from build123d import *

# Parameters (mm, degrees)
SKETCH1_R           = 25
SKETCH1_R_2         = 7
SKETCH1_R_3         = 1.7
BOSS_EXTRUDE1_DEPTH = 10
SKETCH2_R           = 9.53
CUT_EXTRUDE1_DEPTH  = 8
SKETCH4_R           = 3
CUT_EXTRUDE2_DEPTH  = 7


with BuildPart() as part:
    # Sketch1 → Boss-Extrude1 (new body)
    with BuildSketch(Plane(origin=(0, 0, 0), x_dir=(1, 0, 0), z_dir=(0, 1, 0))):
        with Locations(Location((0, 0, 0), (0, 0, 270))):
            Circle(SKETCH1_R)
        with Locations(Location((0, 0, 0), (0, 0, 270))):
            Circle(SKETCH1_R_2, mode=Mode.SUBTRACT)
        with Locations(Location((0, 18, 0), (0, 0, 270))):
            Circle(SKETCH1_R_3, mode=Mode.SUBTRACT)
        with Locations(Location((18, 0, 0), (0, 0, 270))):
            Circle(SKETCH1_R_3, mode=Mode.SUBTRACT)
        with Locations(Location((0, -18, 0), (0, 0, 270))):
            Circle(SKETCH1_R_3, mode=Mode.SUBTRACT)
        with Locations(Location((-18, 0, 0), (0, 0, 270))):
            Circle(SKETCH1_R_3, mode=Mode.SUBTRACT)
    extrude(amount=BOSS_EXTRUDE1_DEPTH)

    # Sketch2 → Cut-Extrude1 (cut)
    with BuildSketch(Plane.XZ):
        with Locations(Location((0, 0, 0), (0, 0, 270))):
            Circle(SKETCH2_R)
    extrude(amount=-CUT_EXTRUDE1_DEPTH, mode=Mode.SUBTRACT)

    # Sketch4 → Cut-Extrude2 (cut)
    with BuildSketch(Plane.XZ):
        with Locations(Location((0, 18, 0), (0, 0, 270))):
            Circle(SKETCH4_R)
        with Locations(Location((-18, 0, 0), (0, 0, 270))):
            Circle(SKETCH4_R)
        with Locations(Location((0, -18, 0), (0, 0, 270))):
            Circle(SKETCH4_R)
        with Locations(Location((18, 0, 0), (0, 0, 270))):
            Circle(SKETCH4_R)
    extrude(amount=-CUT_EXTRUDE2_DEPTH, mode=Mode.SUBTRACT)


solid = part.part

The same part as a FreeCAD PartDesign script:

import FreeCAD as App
import Part
import Sketcher
from FreeCAD import Vector
Q = App.Units.Quantity

doc = App.newDocument("Part")
body = doc.addObject("PartDesign::Body", "Body")

# Sketch on XZ plane
sketch1 = body.newObject("Sketcher::SketchObject", "Sketch")
sketch1.AttachmentSupport = (doc.getObject("XZ_Plane"), [""])
sketch1.MapMode = "FlatFace"
sketch1.addGeometry([
    Part.Circle(Vector(0, 0, 0), Vector(0, 0, 1), 25),  # 0
    Part.Circle(Vector(0, -18, 0), Vector(0, 0, 1), 1.7),  # 1
    Part.Circle(Vector(-18, 0, 0), Vector(0, 0, 1), 1.7),  # 2
    Part.Circle(Vector(0, 0, 0), Vector(0, 0, 1), 7),  # 3
    Part.Circle(Vector(18, 0, 0), Vector(0, 0, 1), 1.7),  # 4
    Part.Circle(Vector(0, 18, 0), Vector(0, 0, 1), 1.7),  # 5
], False)
sketch1.addConstraint([
    Sketcher.Constraint("Coincident", 0, 3, -1, 1),
    Sketcher.Constraint("Coincident", 3, 3, -1, 1),
    Sketcher.Constraint("Equal", 1, 2),
    Sketcher.Constraint("Equal", 2, 4),
    Sketcher.Constraint("Equal", 4, 5),
    Sketcher.Constraint("Symmetric", 2, 3, 4, 3, -1, 1),
    Sketcher.Constraint("Symmetric", 1, 3, 5, 3, -1, 1),
    Sketcher.Constraint("PointOnObject", 1, 3, -2),
    Sketcher.Constraint("PointOnObject", 2, 3, -1),
    Sketcher.Constraint("Diameter", 0, Q("50 mm")),
    Sketcher.Constraint("Diameter", 3, Q("14 mm")),
    Sketcher.Constraint("Diameter", 1, Q("3.4 mm")),
    Sketcher.Constraint("DistanceY", 1, 3, -1, 1, Q("18 mm")),
    Sketcher.Constraint("DistanceX", 2, 3, -1, 1, Q("18 mm")),
])
pad1 = body.newObject("PartDesign::Pad", "Pad")
pad1.Profile = sketch1
pad1.Length = 10
pad1.Reversed = True

# Sketch on XZ plane
sketch2 = body.newObject("Sketcher::SketchObject", "Sketch001")
sketch2.AttachmentSupport = (doc.getObject("XZ_Plane"), [""])
sketch2.MapMode = "FlatFace"
sketch2.addGeometry(Part.Circle(Vector(0, 0, 0), Vector(0, 0, 1), 9.53), False)
sketch2.addConstraint([
    Sketcher.Constraint("Coincident", 0, 3, -1, 1),
    Sketcher.Constraint("Diameter", 0, Q("19.06 mm")),
])
pocket1 = body.newObject("PartDesign::Pocket", "Pocket")
pocket1.Profile = sketch2
pocket1.Length = 8

# Sketch on XZ plane
sketch3 = body.newObject("Sketcher::SketchObject", "Sketch002")
sketch3.AttachmentSupport = (doc.getObject("XZ_Plane"), [""])
sketch3.MapMode = "FlatFace"
sketch3.addGeometry([
    Part.Circle(Vector(0, 18, 0), Vector(0, 0, 1), 3),
    Part.Circle(Vector(-18, 0, 0), Vector(0, 0, 1), 3),
    Part.Circle(Vector(0, -18, 0), Vector(0, 0, 1), 3),
    Part.Circle(Vector(18, 0, 0), Vector(0, 0, 1), 3),
], False)
sketch3.addConstraint([
    Sketcher.Constraint("Equal", 0, 1),
    Sketcher.Constraint("Equal", 1, 2),
    Sketcher.Constraint("Equal", 2, 3),
    Sketcher.Constraint("Symmetric", 0, 3, 2, 3, -1, 1),
    Sketcher.Constraint("Symmetric", 1, 3, 3, 3, -1, 1),
    Sketcher.Constraint("PointOnObject", 0, 3, -2),
    Sketcher.Constraint("PointOnObject", 1, 3, -1),
    Sketcher.Constraint("Diameter", 0, Q("6 mm")),
    Sketcher.Constraint("DistanceY", -1, 1, 0, 3, Q("18 mm")),
    Sketcher.Constraint("DistanceX", 1, 3, -1, 1, Q("18 mm")),
])
pocket2 = body.newObject("PartDesign::Pocket", "Pocket001")
pocket2.Profile = sketch3
pocket2.Length = 7

doc.recompute()
